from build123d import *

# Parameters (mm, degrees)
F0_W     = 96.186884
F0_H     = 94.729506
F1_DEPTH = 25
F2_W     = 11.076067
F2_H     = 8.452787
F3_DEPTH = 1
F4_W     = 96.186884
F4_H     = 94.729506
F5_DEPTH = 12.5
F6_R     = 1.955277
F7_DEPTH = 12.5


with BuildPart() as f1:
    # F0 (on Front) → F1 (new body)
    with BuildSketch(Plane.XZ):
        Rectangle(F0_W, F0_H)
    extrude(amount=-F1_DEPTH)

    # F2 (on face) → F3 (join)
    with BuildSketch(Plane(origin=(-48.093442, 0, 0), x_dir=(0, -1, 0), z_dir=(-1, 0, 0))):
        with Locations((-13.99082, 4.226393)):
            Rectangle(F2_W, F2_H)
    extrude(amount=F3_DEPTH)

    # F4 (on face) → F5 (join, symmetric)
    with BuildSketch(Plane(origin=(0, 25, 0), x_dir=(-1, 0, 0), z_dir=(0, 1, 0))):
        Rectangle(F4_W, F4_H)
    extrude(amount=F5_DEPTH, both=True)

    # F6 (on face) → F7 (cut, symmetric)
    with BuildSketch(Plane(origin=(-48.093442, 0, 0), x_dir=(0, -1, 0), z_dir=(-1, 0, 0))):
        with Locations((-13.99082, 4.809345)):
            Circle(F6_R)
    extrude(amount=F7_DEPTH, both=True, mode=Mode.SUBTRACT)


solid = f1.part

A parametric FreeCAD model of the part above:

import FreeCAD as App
import Part
import Sketcher

V = App.Vector

doc = App.newDocument("Part")
body = doc.addObject("PartDesign::Body", "Body")

# Sketch on XZ plane
sketch1 = doc.addObject("Sketcher::SketchObject", "Sketch")
body.addObject(sketch1)
sketch1.AttachmentSupport = (doc.XZ_Plane, [""])
sketch1.MapMode = "FlatFace"
sketch1.addGeometry([
    Part.LineSegment(V(-48.093442, 47.364753, 0), V(-48.093442, -47.364753, 0)),
    Part.LineSegment(V(-48.093442, -47.364753, 0), V(48.093442, -47.364753, 0)),
    Part.LineSegment(V(48.093442, -47.364753, 0), V(48.093442, 47.364753, 0)),
    Part.LineSegment(V(48.093442, 47.364753, 0), V(-48.093442, 47.364753, 0)),
], False)
sketch1.addConstraint([
    Sketcher.Constraint("Coincident", 0, 2, 1, 1),
    Sketcher.Constraint("Coincident", 1, 2, 2, 1),
    Sketcher.Constraint("Coincident", 2, 2, 3, 1),
    Sketcher.Constraint("Coincident", 3, 2, 0, 1),
    Sketcher.Constraint("Vertical", 0),
    Sketcher.Constraint("Horizontal", 1),
    Sketcher.Constraint("Vertical", 2),
    Sketcher.Constraint("Horizontal", 3),
    Sketcher.Constraint("Symmetric", 0, 2, 2, 2, -1, 1),
    Sketcher.Constraint("DistanceX", 1, 1, 1, 2, 96.186884),
    Sketcher.Constraint("DistanceY", 0, 2, 0, 1, 94.729506),
])
pad1 = doc.addObject("PartDesign::Pad", "Pad")
body.addObject(pad1)
pad1.Profile = sketch1
pad1.Length = 25
pad1.Reversed = True

# Sketch on YZ plane
sketch2 = doc.addObject("Sketcher::SketchObject", "Sketch001")
body.addObject(sketch2)
sketch2.AttachmentSupport = (doc.YZ_Plane, [""])
sketch2.MapMode = "FlatFace"
sketch2.AttachmentOffset = App.Placement(V(0, 0, -48.093442), App.Rotation())
sketch2.addGeometry([
    Part.LineSegment(V(19.528854, 8.452787, 0), V(19.528854, 0, 0)),
    Part.LineSegment(V(19.528854, 0, 0), V(8.452787, 0, 0)),
    Part.LineSegment(V(8.452787, 0, 0), V(8.452787, 8.452787, 0)),
    Part.LineSegment(V(8.452787, 8.452787, 0), V(19.528854, 8.452787, 0)),
], False)
sketch2.addConstraint([
    Sketcher.Constraint("Coincident", 0, 2, 1, 1),
    Sketcher.Constraint("Coincident", 1, 2, 2, 1),
    Sketcher.Constraint("Coincident", 2, 2, 3, 1),
    Sketcher.Constraint("Coincident", 3, 2, 0, 1),
    Sketcher.Constraint("Vertical", 0),
    Sketcher.Constraint("Horizontal", 1),
    Sketcher.Constraint("Vertical", 2),
    Sketcher.Constraint("Horizontal", 3),
    Sketcher.Constraint("PointOnObject", 0, 2, -1),
    Sketcher.Constraint("DistanceX", 1, 2, 1, 1, 11.076067),
    Sketcher.Constraint("DistanceY", 0, 2, 0, 1, 8.452787),
    Sketcher.Constraint("DistanceX", -1, 1, 0, 2, 19.528854),
])
pad2 = doc.addObject("PartDesign::Pad", "Pad001")
body.addObject(pad2)
pad2.Profile = sketch2
pad2.Length = 1
pad2.Reversed = True

# Sketch on XZ plane
sketch3 = doc.addObject("Sketcher::SketchObject", "Sketch002")
body.addObject(sketch3)
sketch3.AttachmentSupport = (doc.XZ_Plane, [""])
sketch3.MapMode = "FlatFace"
sketch3.AttachmentOffset = App.Placement(V(0, 0, -25), App.Rotation())
sketch3.addGeometry([
    Part.LineSegment(V(48.093442, 47.364753, 0), V(48.093442, -47.364753, 0)),
    Part.LineSegment(V(48.093442, -47.364753, 0), V(-48.093442, -47.364753, 0)),
    Part.LineSegment(V(-48.093442, -47.364753, 0), V(-48.093442, 47.364753, 0)),
    Part.LineSegment(V(-48.093442, 47.364753, 0), V(48.093442, 47.364753, 0)),
], False)
sketch3.addConstraint([
    Sketcher.Constraint("Coincident", 0, 2, 1, 1),
    Sketcher.Constraint("Coincident", 1, 2, 2, 1),
    Sketcher.Constraint("Coincident", 2, 2, 3, 1),
    Sketcher.Constraint("Coincident", 3, 2, 0, 1),
    Sketcher.Constraint("Vertical", 0),
    Sketcher.Constraint("Horizontal", 1),
    Sketcher.Constraint("Vertical", 2),
    Sketcher.Constraint("Horizontal", 3),
    Sketcher.Constraint("Symmetric", 0, 2, 2, 2, -1, 1),
    Sketcher.Constraint("DistanceX", 1, 2, 1, 1, 96.186884),
    Sketcher.Constraint("DistanceY", 0, 2, 0, 1, 94.729506),
])
pad3 = doc.addObject("PartDesign::Pad", "Pad002")
body.addObject(pad3)
pad3.Profile = sketch3
pad3.Length = 25
pad3.Midplane = True

# Sketch on YZ plane
sketch4 = doc.addObject("Sketcher::SketchObject", "Sketch003")
body.addObject(sketch4)
sketch4.AttachmentSupport = (doc.YZ_Plane, [""])
sketch4.MapMode = "FlatFace"
sketch4.AttachmentOffset = App.Placement(V(0, 0, -48.093442), App.Rotation())
sketch4.addGeometry(Part.Circle(V(13.99082, 4.809345, 0), V(0, 0, 1), 1.955277), False)
sketch4.addConstraint([
    Sketcher.Constraint("Diameter", 0, 3.910554),
    Sketcher.Constraint("DistanceX", -1, 1, 0, 3, 13.99082),
    Sketcher.Constraint("DistanceY", -1, 1, 0, 3, 4.809345),
])
pocket1 = doc.addObject("PartDesign::Pocket", "Pocket")
body.addObject(pocket1)
pocket1.Profile = sketch4
pocket1.Length = 25
pocket1.Midplane = True

doc.recompute()
